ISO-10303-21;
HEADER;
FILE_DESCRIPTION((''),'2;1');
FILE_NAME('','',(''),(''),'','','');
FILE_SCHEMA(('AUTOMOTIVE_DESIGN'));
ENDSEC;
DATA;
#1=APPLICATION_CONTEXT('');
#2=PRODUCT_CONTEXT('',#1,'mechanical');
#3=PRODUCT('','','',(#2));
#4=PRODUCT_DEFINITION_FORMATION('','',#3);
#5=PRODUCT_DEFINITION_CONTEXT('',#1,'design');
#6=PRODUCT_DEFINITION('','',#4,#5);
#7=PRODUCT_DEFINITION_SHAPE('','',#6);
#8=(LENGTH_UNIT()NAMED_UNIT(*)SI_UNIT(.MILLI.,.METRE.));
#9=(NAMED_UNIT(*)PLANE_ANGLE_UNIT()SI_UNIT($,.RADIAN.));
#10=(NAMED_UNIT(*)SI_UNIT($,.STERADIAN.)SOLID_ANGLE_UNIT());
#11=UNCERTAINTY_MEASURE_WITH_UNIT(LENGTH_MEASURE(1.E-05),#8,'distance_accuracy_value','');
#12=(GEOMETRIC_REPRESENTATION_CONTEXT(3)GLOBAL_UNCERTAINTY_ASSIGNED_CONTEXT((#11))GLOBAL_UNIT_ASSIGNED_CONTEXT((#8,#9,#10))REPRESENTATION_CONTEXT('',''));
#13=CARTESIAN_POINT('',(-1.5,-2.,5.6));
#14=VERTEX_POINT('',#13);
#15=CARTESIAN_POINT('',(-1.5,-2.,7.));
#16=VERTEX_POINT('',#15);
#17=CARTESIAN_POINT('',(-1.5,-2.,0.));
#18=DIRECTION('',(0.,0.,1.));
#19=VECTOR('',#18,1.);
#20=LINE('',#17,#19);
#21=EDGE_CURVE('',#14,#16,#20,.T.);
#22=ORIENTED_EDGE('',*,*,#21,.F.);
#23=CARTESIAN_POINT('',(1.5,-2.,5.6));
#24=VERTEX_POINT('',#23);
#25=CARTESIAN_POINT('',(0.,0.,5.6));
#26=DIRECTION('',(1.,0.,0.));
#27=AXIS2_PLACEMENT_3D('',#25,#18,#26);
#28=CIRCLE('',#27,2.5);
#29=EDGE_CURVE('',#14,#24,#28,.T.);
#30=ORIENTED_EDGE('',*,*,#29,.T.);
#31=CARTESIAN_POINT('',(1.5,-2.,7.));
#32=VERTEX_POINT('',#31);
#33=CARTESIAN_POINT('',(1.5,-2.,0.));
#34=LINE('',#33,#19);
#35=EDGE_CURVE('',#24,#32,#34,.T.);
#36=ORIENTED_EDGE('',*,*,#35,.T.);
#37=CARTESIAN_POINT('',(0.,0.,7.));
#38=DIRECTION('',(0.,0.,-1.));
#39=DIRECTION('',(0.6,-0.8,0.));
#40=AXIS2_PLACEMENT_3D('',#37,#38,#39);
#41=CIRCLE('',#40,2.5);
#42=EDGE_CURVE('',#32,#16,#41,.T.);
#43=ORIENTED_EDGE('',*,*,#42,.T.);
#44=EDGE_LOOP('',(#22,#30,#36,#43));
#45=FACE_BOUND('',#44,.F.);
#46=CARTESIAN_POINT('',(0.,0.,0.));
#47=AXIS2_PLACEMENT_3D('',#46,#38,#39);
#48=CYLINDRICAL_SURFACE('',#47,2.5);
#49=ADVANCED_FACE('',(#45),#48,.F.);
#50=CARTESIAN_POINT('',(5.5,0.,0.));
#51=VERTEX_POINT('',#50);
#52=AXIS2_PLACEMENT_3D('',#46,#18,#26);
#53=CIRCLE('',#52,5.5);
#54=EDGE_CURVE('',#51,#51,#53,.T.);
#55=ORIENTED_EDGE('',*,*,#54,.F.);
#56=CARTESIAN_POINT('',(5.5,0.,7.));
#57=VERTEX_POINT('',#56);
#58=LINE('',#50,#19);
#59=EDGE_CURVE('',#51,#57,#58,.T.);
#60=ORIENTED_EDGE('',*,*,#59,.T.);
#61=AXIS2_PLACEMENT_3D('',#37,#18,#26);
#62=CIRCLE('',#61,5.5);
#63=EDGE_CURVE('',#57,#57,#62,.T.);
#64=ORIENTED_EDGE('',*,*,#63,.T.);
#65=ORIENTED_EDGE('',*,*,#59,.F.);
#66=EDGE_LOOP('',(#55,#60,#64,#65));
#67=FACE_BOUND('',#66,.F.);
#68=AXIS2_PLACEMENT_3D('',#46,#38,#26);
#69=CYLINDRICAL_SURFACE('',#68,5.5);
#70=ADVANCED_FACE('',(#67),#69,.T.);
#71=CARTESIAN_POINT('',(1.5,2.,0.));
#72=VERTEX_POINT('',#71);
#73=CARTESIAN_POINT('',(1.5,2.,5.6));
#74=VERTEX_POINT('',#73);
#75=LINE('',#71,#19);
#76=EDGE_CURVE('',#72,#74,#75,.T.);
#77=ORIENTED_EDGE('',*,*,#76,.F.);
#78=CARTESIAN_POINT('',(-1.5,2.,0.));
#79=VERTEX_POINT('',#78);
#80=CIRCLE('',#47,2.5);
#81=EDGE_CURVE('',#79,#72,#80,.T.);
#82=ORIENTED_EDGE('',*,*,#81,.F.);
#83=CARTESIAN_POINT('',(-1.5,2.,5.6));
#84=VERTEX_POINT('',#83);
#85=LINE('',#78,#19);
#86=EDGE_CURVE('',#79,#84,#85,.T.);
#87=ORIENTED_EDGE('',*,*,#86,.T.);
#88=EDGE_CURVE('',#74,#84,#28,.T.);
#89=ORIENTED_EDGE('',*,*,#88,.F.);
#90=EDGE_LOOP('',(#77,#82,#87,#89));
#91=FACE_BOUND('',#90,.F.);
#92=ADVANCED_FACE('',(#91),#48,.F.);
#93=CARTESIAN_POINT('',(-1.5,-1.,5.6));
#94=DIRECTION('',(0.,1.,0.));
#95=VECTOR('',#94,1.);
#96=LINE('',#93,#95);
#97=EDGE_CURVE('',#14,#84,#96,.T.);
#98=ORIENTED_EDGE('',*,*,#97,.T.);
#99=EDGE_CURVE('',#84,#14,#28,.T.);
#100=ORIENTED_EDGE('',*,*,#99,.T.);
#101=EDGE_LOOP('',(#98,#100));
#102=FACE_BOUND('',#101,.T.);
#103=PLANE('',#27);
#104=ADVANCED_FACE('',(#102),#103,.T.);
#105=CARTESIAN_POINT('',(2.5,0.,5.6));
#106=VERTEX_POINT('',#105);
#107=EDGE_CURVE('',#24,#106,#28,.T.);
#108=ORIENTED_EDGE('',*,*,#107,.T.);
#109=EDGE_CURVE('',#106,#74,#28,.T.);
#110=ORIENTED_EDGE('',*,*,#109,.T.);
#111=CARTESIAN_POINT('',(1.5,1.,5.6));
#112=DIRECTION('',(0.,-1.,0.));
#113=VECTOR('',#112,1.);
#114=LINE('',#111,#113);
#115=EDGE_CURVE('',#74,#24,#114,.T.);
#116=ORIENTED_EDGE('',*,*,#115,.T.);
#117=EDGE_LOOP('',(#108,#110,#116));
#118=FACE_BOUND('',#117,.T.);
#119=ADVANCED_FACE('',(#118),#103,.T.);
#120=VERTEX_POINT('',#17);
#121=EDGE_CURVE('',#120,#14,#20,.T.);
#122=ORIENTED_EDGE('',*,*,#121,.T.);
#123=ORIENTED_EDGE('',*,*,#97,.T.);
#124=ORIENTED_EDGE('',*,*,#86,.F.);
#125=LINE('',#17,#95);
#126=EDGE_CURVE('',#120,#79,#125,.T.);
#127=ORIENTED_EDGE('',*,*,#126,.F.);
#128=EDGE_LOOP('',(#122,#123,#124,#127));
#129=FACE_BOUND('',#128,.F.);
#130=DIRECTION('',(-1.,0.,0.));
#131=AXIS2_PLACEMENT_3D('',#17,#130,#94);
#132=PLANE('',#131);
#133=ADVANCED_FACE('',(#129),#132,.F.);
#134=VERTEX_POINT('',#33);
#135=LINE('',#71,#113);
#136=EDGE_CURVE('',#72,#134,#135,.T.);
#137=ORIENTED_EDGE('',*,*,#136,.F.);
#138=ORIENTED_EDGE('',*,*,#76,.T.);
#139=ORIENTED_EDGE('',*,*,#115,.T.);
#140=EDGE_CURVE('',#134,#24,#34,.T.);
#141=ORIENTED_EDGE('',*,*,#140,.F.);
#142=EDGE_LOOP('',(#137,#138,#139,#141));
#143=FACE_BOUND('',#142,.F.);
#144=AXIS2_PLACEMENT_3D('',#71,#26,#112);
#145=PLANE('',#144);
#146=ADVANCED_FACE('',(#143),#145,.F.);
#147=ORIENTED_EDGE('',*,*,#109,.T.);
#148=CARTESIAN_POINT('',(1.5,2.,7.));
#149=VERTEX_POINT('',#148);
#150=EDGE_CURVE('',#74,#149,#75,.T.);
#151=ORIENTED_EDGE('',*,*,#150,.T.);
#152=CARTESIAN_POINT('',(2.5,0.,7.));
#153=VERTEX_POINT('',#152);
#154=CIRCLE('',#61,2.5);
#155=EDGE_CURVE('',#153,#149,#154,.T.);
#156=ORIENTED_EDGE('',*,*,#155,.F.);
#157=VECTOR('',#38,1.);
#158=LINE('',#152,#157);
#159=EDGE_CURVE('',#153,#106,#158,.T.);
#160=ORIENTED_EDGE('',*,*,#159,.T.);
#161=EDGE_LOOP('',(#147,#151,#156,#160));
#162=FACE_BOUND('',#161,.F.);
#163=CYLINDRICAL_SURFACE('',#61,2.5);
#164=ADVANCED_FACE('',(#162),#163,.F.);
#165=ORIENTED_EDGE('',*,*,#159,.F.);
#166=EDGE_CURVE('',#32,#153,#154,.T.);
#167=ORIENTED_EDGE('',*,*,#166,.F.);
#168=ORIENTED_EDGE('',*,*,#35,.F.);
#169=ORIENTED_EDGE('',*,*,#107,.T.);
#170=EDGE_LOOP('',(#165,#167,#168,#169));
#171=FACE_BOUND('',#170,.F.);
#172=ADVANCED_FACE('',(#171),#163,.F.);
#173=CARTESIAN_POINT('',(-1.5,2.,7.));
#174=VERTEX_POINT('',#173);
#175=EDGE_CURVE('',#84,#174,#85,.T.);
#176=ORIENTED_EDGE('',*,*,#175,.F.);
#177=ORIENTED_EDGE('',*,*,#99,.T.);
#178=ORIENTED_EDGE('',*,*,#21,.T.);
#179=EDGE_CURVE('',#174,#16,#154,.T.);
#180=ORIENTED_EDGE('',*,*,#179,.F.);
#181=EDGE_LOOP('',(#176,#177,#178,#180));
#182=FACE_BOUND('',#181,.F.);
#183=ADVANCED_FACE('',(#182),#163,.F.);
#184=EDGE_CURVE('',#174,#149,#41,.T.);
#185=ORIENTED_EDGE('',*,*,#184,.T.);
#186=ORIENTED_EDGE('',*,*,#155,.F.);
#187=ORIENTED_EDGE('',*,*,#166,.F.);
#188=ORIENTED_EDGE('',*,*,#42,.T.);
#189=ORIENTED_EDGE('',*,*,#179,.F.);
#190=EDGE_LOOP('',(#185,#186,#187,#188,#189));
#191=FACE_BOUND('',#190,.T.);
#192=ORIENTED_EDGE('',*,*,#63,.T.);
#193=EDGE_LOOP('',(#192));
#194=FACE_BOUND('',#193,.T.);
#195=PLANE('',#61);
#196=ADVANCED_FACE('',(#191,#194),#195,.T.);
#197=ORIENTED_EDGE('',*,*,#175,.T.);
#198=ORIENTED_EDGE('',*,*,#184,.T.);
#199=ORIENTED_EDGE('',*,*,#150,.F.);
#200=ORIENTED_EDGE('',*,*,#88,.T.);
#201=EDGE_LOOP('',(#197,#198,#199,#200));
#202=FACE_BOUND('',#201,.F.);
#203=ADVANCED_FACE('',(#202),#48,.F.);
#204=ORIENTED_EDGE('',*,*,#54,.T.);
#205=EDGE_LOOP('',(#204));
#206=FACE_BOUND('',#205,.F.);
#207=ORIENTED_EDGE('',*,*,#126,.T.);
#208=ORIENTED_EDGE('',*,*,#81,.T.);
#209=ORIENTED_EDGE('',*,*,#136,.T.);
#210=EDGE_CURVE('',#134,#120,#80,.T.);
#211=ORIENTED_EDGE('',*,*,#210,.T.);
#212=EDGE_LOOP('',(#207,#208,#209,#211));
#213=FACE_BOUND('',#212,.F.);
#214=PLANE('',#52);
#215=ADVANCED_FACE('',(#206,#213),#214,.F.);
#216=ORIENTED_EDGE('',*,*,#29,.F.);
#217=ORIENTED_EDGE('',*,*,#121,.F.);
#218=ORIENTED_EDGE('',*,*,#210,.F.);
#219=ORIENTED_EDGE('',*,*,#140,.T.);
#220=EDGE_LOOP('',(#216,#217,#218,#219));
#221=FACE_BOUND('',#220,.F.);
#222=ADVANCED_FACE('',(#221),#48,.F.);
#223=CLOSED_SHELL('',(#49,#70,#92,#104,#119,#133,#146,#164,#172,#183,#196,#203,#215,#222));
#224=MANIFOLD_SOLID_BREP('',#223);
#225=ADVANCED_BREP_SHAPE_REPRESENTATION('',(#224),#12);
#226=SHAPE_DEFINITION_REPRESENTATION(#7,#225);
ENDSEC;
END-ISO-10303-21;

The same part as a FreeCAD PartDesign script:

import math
import FreeCAD as App
import Part
import Sketcher
from FreeCAD import Vector
Q = App.Units.Quantity

doc = App.newDocument("Part")
body = doc.addObject("PartDesign::Body", "Body")

# Sketch on XY plane
sketch1 = body.newObject("Sketcher::SketchObject", "Sketch")
sketch1.AttachmentSupport = (doc.getObject("XY_Plane"), [""])
sketch1.MapMode = "FlatFace"
sketch1.addGeometry(Part.Circle(Vector(0, 0, 0), Vector(0, 0, 1), 5.5), False)
sketch1.addGeometry(Part.ArcOfCircle(Part.Circle(Vector(0, 0, 0), Vector(0, 0, 1), 2.5), math.radians(-127), math.radians(-53)), False)
sketch1.addGeometry(Part.LineSegment(Vector(-1.5, -2, 0), Vector(-1.5, 2, 0)), False)
sketch1.addGeometry(Part.ArcOfCircle(Part.Circle(Vector(0, 0, 0), Vector(0, 0, 1), 2.5), math.radians(53), math.radians(127)), False)
sketch1.addGeometry(Part.LineSegment(Vector(1.5, 2, 0), Vector(1.5, -2, 0)), False)
sketch1.addConstraint(Sketcher.Constraint("Coincident", 1, 1, 2, 1))
sketch1.addConstraint(Sketcher.Constraint("Coincident", 2, 2, 3, 2))
sketch1.addConstraint(Sketcher.Constraint("Coincident", 3, 1, 4, 1))
sketch1.addConstraint(Sketcher.Constraint("Coincident", 4, 2, 1, 2))
sketch1.addConstraint(Sketcher.Constraint("Vertical", 2))
sketch1.addConstraint(Sketcher.Constraint("Vertical", 4))
sketch1.addConstraint(Sketcher.Constraint("Coincident", 0, 3, -1, 1))
sketch1.addConstraint(Sketcher.Constraint("Coincident", 1, 3, -1, 1))
sketch1.addConstraint(Sketcher.Constraint("Coincident", 3, 3, -1, 1))
sketch1.addConstraint(Sketcher.Constraint("Equal", 1, 3))
sketch1.addConstraint(Sketcher.Constraint("Horizontal", 2, 2, 3, 1))
sketch1.addConstraint(Sketcher.Constraint("Diameter", 0, Q("11 mm")))
sketch1.addConstraint(Sketcher.Constraint("Radius", 1, Q("2.5 mm")))
sketch1.addConstraint(Sketcher.Constraint("DistanceY", 2, 1, 2, 2, Q("4 mm")))
pad1 = body.newObject("PartDesign::Pad", "Pad")
pad1.Profile = sketch1
pad1.Length = 7

# Sketch on XY plane
sketch2 = body.newObject("Sketcher::SketchObject", "Sketch001")
sketch2.AttachmentSupport = (doc.getObject("XY_Plane"), [""])
sketch2.MapMode = "FlatFace"
sketch2.AttachmentOffset = App.Placement(Vector(0, 0, 7), App.Rotation())
sketch2.addGeometry(Part.Circle(Vector(0, 0, 0), Vector(0, 0, 1), 2.5), False)
sketch2.addConstraint(Sketcher.Constraint("Coincident", 0, 3, -1, 1))
sketch2.addConstraint(Sketcher.Constraint("Diameter", 0, Q("5 mm")))
pocket1 = body.newObject("PartDesign::Pocket", "Pocket")
pocket1.Profile = sketch2
pocket1.Length = 1.4

doc.recompute()
